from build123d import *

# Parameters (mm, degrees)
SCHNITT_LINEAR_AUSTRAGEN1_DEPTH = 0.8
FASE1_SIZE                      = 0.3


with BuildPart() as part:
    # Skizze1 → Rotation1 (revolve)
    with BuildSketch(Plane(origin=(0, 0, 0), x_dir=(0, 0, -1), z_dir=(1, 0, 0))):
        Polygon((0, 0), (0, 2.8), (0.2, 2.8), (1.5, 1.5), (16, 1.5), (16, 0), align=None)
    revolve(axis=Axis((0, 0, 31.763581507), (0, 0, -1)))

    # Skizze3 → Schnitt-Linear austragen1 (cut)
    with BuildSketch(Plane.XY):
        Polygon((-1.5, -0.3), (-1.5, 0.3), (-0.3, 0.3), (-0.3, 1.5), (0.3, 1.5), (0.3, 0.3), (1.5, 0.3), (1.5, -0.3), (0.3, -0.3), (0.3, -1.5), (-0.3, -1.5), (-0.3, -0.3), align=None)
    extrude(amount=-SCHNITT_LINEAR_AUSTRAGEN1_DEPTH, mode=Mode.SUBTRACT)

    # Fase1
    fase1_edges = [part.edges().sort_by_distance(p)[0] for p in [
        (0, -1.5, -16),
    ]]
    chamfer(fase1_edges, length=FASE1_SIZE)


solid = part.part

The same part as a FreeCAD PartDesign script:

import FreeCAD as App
import Part
import Sketcher
Q = App.Units.Quantity


def edges_at(feature, points):
    """Names of the edges that pass closest to the given points."""
    edges = feature.Shape.Edges
    near = lambda p: min(range(len(edges)), key=lambda i: edges[i].distToShape(Part.Vertex(*p))[0])
    return sorted({f"Edge{near(p) + 1}" for p in points})

doc = App.newDocument("Part")
body = doc.addObject("PartDesign::Body", "Body")

sketch1 = doc.addObject("Sketcher::SketchObject", "Sketch")
body.addObject(sketch1)
sketch1.AttachmentSupport = (doc.YZ_Plane, [""])
sketch1.MapMode = "FlatFace"
sketch1.addGeometry(Part.LineSegment(App.Vector(2.8, 0, 0), App.Vector(0, 0, 0)), False)
sketch1.addGeometry(Part.LineSegment(App.Vector(0, 0, 0), App.Vector(0, -16, 0)), False)
sketch1.addGeometry(Part.LineSegment(App.Vector(0, -16, 0), App.Vector(1.5, -16, 0)), False)
sketch1.addGeometry(Part.LineSegment(App.Vector(1.5, -16, 0), App.Vector(1.5, -1.5, 0)), False)
sketch1.addGeometry(Part.LineSegment(App.Vector(1.5, -1.5, 0), App.Vector(2.8, -0.2, 0)), False)
sketch1.addGeometry(Part.LineSegment(App.Vector(2.8, -0.2, 0), App.Vector(2.8, 0, 0)), False)
sketch1.addConstraint(Sketcher.Constraint("Coincident", 0, 2, 1, 1))
sketch1.addConstraint(Sketcher.Constraint("Coincident", 1, 2, 2, 1))
sketch1.addConstraint(Sketcher.Constraint("Coincident", 2, 2, 3, 1))
sketch1.addConstraint(Sketcher.Constraint("Coincident", 3, 2, 4, 1))
sketch1.addConstraint(Sketcher.Constraint("Coincident", 4, 2, 5, 1))
sketch1.addConstraint(Sketcher.Constraint("Coincident", 5, 2, 0, 1))
sketch1.addConstraint(Sketcher.Constraint("Horizontal", 0))
sketch1.addConstraint(Sketcher.Constraint("Vertical", 1))
sketch1.addConstraint(Sketcher.Constraint("Horizontal", 2))
sketch1.addConstraint(Sketcher.Constraint("Vertical", 3))
sketch1.addConstraint(Sketcher.Constraint("Vertical", 5))
sketch1.addConstraint(Sketcher.Constraint("Coincident", 0, 2, -1, 1))
sketch1.addConstraint(Sketcher.Constraint("DistanceY", 1, 2, 1, 1, Q("16 mm")))
sketch1.addConstraint(Sketcher.Constraint("Angle", 4, Q("45 deg")))
sketch1.addConstraint(Sketcher.Constraint("DistanceX", 0, 2, 0, 1, Q("2.8 mm")))
sketch1.addConstraint(Sketcher.Constraint("DistanceX", 2, 1, 2, 2, Q("1.5 mm")))
sketch1.addConstraint(Sketcher.Constraint("DistanceY", 3, 1, 3, 2, Q("14.5 mm")))
revolution = doc.addObject("PartDesign::Revolution", "Revolution")
body.addObject(revolution)
revolution.Profile = sketch1
revolution.ReferenceAxis = (sketch1, ["V_Axis"])
revolution.Angle = 360

sketch2 = doc.addObject("Sketcher::SketchObject", "Sketch001")
body.addObject(sketch2)
sketch2.AttachmentSupport = (doc.XY_Plane, [""])
sketch2.MapMode = "FlatFace"
sketch2.addGeometry(Part.LineSegment(App.Vector(-1.5, 0.3, 0), App.Vector(-1.5, -0.3, 0)), False)
sketch2.addGeometry(Part.LineSegment(App.Vector(-1.5, -0.3, 0), App.Vector(-0.3, -0.3, 0)), False)
sketch2.addGeometry(Part.LineSegment(App.Vector(-0.3, -0.3, 0), App.Vector(-0.3, -1.5, 0)), False)
sketch2.addGeometry(Part.LineSegment(App.Vector(-0.3, -1.5, 0), App.Vector(0.3, -1.5, 0)), False)
sketch2.addGeometry(Part.LineSegment(App.Vector(0.3, -1.5, 0), App.Vector(0.3, -0.3, 0)), False)
sketch2.addGeometry(Part.LineSegment(App.Vector(0.3, -0.3, 0), App.Vector(1.5, -0.3, 0)), False)
sketch2.addGeometry(Part.LineSegment(App.Vector(1.5, -0.3, 0), App.Vector(1.5, 0.3, 0)), False)
sketch2.addGeometry(Part.LineSegment(App.Vector(1.5, 0.3, 0), App.Vector(0.3, 0.3, 0)), False)
sketch2.addGeometry(Part.LineSegment(App.Vector(0.3, 0.3, 0), App.Vector(0.3, 1.5, 0)), False)
sketch2.addGeometry(Part.LineSegment(App.Vector(0.3, 1.5, 0), App.Vector(-0.3, 1.5, 0)), False)
sketch2.addGeometry(Part.LineSegment(App.Vector(-0.3, 1.5, 0), App.Vector(-0.3, 0.3, 0)), False)
sketch2.addGeometry(Part.LineSegment(App.Vector(-0.3, 0.3, 0), App.Vector(-1.5, 0.3, 0)), False)
sketch2.addConstraint(Sketcher.Constraint("Coincident", 0, 2, 1, 1))
sketch2.addConstraint(Sketcher.Constraint("Coincident", 1, 2, 2, 1))
sketch2.addConstraint(Sketcher.Constraint("Coincident", 2, 2, 3, 1))
sketch2.addConstraint(Sketcher.Constraint("Coincident", 3, 2, 4, 1))
sketch2.addConstraint(Sketcher.Constraint("Coincident", 4, 2, 5, 1))
sketch2.addConstraint(Sketcher.Constraint("Coincident", 5, 2, 6, 1))
sketch2.addConstraint(Sketcher.Constraint("Coincident", 6, 2, 7, 1))
sketch2.addConstraint(Sketcher.Constraint("Coincident", 7, 2, 8, 1))
sketch2.addConstraint(Sketcher.Constraint("Coincident", 8, 2, 9, 1))
sketch2.addConstraint(Sketcher.Constraint("Coincident", 9, 2, 10, 1))
sketch2.addConstraint(Sketcher.Constraint("Coincident", 10, 2, 11, 1))
sketch2.addConstraint(Sketcher.Constraint("Coincident", 11, 2, 0, 1))
sketch2.addConstraint(Sketcher.Constraint("Vertical", 0))
sketch2.addConstraint(Sketcher.Constraint("Horizontal", 1))
sketch2.addConstraint(Sketcher.Constraint("Vertical", 2))
sketch2.addConstraint(Sketcher.Constraint("Horizontal", 3))
sketch2.addConstraint(Sketcher.Constraint("Vertical", 4))
sketch2.addConstraint(Sketcher.Constraint("Horizontal", 5))
sketch2.addConstraint(Sketcher.Constraint("Vertical", 6))
sketch2.addConstraint(Sketcher.Constraint("Horizontal", 7))
sketch2.addConstraint(Sketcher.Constraint("Vertical", 8))
sketch2.addConstraint(Sketcher.Constraint("Horizontal", 9))
sketch2.addConstraint(Sketcher.Constraint("Vertical", 10))
sketch2.addConstraint(Sketcher.Constraint("Horizontal", 11))
sketch2.addConstraint(Sketcher.Constraint("Symmetric", 0, 2, 6, 2, -1, 1))
sketch2.addConstraint(Sketcher.Constraint("Symmetric", 2, 2, 8, 2, -1, 1))
sketch2.addConstraint(Sketcher.Constraint("Symmetric", 4, 2, 10, 2, -1, 1))
sketch2.addConstraint(Sketcher.Constraint("Symmetric", 1, 2, 4, 2, -2))
sketch2.addConstraint(Sketcher.Constraint("Equal", 9, 0))
sketch2.addConstraint(Sketcher.Constraint("Equal", 11, 2))
sketch2.addConstraint(Sketcher.Constraint("DistanceX", 1, 1, 1, 2, Q("1.2 mm")))
sketch2.addConstraint(Sketcher.Constraint("DistanceX", 3, 1, 3, 2, Q("0.6 mm")))
pocket1 = doc.addObject("PartDesign::Pocket", "Pocket")
body.addObject(pocket1)
pocket1.Profile = sketch2
pocket1.Length = 0.8
doc.recompute()

chamfer = doc.addObject("PartDesign::Chamfer", "Chamfer")
body.addObject(chamfer)
chamfer.Base = (pocket1, edges_at(pocket1, [(0, -1.5, -16)]))
chamfer.Size = 0.3

doc.recompute()
